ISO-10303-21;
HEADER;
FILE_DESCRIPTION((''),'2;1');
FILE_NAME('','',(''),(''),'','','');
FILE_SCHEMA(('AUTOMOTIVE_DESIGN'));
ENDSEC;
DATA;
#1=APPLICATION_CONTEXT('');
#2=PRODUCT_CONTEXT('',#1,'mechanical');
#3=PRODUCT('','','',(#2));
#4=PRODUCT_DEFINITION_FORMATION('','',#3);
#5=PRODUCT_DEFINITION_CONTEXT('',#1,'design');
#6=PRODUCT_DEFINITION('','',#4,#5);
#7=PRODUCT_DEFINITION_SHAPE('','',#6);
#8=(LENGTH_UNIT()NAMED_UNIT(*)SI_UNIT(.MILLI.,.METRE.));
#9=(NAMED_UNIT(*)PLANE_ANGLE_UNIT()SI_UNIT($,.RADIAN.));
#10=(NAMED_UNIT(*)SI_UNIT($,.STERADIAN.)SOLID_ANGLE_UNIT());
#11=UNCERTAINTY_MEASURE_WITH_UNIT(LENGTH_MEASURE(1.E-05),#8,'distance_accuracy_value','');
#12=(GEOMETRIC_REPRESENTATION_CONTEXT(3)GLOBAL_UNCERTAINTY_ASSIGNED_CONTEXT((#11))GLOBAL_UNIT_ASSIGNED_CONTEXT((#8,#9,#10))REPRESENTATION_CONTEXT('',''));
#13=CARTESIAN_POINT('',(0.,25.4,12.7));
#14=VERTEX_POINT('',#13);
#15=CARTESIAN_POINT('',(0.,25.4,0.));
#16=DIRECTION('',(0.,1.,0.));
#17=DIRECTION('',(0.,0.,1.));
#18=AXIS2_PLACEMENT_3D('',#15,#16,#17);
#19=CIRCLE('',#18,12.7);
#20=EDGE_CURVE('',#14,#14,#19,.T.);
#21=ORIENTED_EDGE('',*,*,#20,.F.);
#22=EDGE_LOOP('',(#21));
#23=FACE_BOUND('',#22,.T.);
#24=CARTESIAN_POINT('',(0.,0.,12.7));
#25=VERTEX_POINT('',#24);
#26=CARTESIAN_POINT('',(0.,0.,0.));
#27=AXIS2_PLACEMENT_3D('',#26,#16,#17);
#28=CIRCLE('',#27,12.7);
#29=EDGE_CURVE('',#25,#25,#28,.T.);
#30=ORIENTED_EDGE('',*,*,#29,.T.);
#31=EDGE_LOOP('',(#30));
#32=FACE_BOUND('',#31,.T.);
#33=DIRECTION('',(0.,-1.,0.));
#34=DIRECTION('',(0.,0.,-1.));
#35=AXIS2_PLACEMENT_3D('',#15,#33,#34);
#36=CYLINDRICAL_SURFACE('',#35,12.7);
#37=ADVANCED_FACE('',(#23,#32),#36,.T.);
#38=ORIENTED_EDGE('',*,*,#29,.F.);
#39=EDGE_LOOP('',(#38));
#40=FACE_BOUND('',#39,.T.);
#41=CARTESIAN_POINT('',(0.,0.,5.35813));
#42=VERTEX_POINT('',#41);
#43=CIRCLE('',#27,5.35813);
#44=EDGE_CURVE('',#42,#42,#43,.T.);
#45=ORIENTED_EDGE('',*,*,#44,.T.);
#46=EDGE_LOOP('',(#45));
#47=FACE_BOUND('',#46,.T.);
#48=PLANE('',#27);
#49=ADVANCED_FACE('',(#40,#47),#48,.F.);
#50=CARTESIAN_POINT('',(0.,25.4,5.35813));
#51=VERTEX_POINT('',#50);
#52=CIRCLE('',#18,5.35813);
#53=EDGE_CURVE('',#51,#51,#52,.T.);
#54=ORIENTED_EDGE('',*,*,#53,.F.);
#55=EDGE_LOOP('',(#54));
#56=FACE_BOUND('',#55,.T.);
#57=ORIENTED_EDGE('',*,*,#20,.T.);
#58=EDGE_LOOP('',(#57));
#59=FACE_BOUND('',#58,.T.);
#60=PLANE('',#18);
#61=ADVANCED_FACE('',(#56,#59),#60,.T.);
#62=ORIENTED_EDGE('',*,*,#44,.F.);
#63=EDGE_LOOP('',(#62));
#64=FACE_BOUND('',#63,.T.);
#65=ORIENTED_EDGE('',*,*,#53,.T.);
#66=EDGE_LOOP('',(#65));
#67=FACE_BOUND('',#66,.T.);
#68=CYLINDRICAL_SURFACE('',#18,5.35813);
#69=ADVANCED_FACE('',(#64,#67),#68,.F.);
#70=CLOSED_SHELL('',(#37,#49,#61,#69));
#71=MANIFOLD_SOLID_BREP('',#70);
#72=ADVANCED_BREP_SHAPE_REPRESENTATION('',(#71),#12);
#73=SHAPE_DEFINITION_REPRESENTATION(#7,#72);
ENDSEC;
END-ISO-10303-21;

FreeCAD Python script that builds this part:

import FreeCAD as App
import Part
import Sketcher
from FreeCAD import Vector
Q = App.Units.Quantity

doc = App.newDocument("Part")
body = doc.addObject("PartDesign::Body", "Body")

# Sketch on XZ plane
sketch1 = body.newObject("Sketcher::SketchObject", "Sketch")
sketch1.AttachmentSupport = (doc.getObject("XZ_Plane"), [""])
sketch1.MapMode = "FlatFace"
sketch1.addGeometry(Part.Circle(Vector(0, 0, 0), Vector(0, 0, 1), 13), False)
sketch1.addConstraint([
    Sketcher.Constraint("Coincident", 0, 3, -1, 1),
    Sketcher.Constraint("Diameter", 0, Q("1 in")),
])
pad1 = body.newObject("PartDesign::Pad", "Pad")
pad1.Profile = sketch1
pad1.Length = Q("1 in")
pad1.Reversed = True

# Sketch on XZ plane
sketch2 = body.newObject("Sketcher::SketchObject", "Sketch001")
sketch2.AttachmentSupport = (doc.getObject("XZ_Plane"), [""])
sketch2.MapMode = "FlatFace"
sketch2.AttachmentOffset = App.Placement(Vector(0, 0, -1 * 25.4), App.Rotation())
sketch2.addGeometry(Part.Circle(Vector(0, 0, 0), Vector(0, 0, 1), 5), False)
sketch2.addConstraint([
    Sketcher.Constraint("Coincident", 0, 3, -1, 1),
    Sketcher.Constraint("Diameter", 0, Q("0.4219 in")),
])
doc.recompute()
hole = body.newObject("PartDesign::Hole", "Hole")
hole.Profile = sketch2
hole.ThreadType = "None"
hole.Diameter = Q("0.4219 in")
hole.DepthType = "ThroughAll"
hole.Reversed = True

doc.recompute()
